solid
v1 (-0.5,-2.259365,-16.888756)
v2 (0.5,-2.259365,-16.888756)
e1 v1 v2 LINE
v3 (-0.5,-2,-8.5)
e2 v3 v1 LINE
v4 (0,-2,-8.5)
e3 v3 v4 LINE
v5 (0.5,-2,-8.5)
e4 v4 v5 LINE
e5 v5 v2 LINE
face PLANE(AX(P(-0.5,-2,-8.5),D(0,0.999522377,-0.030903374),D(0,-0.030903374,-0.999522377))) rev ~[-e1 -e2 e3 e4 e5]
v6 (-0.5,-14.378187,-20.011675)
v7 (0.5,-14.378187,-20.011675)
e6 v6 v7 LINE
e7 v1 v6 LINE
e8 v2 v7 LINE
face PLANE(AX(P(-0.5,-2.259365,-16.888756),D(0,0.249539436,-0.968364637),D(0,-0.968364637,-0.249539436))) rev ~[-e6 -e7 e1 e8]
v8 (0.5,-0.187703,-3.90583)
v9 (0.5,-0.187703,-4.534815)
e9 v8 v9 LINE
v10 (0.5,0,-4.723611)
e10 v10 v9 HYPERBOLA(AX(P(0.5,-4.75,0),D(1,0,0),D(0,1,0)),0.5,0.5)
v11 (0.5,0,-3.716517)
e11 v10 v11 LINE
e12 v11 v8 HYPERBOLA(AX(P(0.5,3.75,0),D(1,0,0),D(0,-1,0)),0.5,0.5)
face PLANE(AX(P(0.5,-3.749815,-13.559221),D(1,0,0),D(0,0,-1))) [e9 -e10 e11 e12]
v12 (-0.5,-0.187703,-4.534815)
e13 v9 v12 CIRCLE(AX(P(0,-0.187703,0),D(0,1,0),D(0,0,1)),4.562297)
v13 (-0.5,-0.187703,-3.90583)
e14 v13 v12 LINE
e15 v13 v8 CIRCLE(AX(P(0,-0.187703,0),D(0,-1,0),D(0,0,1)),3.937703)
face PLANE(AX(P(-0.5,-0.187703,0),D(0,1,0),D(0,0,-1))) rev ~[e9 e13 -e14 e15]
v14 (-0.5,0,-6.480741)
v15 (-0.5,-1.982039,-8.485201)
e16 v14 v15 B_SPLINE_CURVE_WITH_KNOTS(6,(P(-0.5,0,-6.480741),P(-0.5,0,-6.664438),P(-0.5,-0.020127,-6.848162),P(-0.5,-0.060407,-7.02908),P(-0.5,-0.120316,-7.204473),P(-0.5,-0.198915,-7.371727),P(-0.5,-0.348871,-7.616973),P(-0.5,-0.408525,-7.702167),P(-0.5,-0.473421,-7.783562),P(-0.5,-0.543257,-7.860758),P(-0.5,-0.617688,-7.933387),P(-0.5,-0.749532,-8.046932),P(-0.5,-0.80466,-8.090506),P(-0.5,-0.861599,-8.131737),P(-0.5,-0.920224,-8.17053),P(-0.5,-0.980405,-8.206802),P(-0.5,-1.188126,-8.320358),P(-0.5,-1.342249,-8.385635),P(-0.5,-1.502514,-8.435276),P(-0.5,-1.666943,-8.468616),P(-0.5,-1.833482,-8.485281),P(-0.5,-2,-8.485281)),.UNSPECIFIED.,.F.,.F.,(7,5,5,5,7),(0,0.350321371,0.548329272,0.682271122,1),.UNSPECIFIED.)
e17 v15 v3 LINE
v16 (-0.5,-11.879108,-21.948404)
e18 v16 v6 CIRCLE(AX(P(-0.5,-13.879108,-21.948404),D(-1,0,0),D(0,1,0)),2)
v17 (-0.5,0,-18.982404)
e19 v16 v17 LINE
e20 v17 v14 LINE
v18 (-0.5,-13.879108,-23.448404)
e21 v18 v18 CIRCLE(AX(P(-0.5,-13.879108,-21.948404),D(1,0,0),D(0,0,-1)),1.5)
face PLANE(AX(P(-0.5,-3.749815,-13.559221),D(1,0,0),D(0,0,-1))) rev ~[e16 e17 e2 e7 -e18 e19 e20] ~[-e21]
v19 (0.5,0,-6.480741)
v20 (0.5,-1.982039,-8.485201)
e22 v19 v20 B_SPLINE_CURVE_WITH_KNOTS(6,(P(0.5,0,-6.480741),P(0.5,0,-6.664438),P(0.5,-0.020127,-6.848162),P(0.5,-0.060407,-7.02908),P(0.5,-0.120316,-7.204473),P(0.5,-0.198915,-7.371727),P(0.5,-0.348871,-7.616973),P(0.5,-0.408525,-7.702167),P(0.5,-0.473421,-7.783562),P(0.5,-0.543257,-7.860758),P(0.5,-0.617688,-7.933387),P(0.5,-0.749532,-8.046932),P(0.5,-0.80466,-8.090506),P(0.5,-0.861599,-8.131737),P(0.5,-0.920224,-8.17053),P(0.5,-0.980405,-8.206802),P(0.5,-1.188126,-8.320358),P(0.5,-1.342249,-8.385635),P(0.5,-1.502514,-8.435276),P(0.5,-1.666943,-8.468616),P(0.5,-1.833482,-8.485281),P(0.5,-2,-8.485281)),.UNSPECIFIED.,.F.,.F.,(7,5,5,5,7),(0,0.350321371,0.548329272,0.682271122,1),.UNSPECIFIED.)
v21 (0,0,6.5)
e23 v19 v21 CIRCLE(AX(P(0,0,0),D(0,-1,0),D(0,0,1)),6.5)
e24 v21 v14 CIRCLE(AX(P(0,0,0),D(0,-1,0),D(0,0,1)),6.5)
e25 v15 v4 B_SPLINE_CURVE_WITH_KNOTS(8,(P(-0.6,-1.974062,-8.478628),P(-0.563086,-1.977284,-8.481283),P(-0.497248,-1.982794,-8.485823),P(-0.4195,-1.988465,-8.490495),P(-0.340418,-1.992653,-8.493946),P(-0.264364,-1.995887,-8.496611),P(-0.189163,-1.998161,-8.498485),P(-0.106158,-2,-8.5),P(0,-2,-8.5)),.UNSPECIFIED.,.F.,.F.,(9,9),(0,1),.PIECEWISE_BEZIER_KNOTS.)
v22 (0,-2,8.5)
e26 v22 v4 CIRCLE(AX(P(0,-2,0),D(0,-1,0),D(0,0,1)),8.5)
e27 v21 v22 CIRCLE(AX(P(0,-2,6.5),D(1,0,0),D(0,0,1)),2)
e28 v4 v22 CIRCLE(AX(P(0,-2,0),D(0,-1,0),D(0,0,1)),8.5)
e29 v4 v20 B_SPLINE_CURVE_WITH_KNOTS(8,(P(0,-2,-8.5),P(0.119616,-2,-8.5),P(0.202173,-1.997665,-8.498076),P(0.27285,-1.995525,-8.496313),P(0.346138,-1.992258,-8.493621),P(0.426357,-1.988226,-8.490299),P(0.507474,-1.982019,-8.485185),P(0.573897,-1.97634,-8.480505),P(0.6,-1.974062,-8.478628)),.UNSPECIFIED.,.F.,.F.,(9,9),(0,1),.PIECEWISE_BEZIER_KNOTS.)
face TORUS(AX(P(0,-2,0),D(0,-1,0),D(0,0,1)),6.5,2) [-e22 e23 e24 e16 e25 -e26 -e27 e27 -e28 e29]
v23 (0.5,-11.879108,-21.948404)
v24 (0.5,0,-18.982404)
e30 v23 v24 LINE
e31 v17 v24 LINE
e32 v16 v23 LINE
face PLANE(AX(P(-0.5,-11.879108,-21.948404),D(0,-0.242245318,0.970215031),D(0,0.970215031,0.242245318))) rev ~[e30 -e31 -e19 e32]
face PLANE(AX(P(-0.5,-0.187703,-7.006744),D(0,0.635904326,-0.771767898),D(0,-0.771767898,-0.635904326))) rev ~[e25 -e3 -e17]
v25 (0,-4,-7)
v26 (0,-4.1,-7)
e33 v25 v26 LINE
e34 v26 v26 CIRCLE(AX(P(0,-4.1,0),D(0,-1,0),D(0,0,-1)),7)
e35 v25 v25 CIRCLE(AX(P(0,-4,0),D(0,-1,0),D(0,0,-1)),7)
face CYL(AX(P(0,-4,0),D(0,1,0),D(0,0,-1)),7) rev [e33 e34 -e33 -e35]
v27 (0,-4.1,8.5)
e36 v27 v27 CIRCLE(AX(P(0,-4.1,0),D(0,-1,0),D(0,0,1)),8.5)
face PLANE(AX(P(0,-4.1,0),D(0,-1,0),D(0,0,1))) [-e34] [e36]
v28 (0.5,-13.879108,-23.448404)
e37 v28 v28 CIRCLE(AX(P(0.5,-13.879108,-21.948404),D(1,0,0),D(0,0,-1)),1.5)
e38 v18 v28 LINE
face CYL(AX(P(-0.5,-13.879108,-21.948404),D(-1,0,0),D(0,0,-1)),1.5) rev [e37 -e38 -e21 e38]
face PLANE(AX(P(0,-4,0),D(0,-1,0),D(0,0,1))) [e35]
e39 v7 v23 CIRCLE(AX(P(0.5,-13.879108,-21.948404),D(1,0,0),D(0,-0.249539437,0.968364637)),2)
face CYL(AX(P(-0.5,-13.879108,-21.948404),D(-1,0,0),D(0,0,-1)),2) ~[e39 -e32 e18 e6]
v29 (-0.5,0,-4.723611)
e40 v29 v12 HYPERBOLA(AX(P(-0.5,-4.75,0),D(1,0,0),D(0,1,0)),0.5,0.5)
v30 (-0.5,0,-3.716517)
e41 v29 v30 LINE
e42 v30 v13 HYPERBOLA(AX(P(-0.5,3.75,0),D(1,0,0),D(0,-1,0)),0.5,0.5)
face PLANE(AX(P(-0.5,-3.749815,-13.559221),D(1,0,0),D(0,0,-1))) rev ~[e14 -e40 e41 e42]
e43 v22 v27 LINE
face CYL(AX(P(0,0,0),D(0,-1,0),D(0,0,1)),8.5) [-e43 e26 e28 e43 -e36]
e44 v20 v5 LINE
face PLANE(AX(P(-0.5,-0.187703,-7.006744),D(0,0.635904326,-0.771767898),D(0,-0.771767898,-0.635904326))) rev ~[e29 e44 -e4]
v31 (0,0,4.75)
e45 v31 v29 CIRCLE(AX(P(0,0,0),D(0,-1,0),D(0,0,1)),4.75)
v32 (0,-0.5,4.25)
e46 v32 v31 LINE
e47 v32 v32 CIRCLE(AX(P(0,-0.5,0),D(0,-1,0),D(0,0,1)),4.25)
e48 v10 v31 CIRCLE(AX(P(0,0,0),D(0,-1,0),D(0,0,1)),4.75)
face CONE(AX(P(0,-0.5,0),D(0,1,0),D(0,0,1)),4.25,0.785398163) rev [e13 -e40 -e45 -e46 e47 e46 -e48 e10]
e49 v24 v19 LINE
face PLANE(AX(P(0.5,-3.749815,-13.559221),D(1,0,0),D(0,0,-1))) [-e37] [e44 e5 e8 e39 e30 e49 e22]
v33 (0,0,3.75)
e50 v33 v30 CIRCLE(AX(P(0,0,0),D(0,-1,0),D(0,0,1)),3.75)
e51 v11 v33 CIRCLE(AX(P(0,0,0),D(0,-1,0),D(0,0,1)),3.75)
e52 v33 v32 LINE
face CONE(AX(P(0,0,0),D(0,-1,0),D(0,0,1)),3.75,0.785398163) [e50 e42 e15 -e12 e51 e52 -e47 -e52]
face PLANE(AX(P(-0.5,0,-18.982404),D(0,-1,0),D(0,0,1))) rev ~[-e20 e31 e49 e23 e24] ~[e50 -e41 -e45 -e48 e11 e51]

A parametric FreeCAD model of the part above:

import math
import FreeCAD as App
import Part
import Sketcher

V = App.Vector


def edges_at(feature, points):
    """Names of the edges that pass closest to the given points."""
    edges = feature.Shape.Edges
    near = lambda p: min(range(len(edges)), key=lambda i: edges[i].distToShape(Part.Vertex(*p))[0])
    return sorted({f"Edge{near(p) + 1}" for p in points})

doc = App.newDocument("Part")
params = doc.addObject("Spreadsheet::Sheet", "Params")
for row, (alias, value) in enumerate([
    ("sketch1_width", "4 mm"),
    ("sketch1_height", "8.5 mm"),
    ("revolution_angle", "360 deg"),
    ("fillet_radius", "2 mm"),
    ("sketch2_diameter", "17 mm"),
    ("sketch2_diameter2", "14 mm"),
    ("pad1_length", "0.1 mm"),
    ("sketch3_diameter", "3 mm"),
    ("sketch3_radius", "2 mm"),
    ("pad2_length", "0.5 mm"),
    ("pad2_length2", "0.5 mm"),
], start=1):
    params.set(f"A{row}", alias)
    params.set(f"B{row}", "=" + value)
    params.setAlias(f"B{row}", alias)

body = doc.addObject("PartDesign::Body", "Body")

sketch1 = body.newObject("Sketcher::SketchObject", "Sketch")
sketch1.AttachmentSupport = (doc.getObject("YZ_Plane"), [""])
sketch1.MapMode = "FlatFace"
sketch1.addGeometry([
    Part.LineSegment(V(0, 0, 0), V(0, 3.75, 0)),
    Part.LineSegment(V(0, 3.75, 0), V(-0.5, 4.25, 0)),
    Part.LineSegment(V(-0.5, 4.25, 0), V(0, 4.75, 0)),
    Part.LineSegment(V(0, 4.75, 0), V(0, 8.5, 0)),
    Part.LineSegment(V(0, 8.5, 0), V(-4, 8.5, 0)),
    Part.LineSegment(V(-4, 8.5, 0), V(-4, 0, 0)),
    Part.LineSegment(V(-4, 0, 0), V(0, 0, 0)),
], False)
sketch1.addConstraint([
    Sketcher.Constraint("Coincident", 0, 2, 1, 1),
    Sketcher.Constraint("Coincident", 1, 2, 2, 1),
    Sketcher.Constraint("Coincident", 2, 2, 3, 1),
    Sketcher.Constraint("Coincident", 3, 2, 4, 1),
    Sketcher.Constraint("Coincident", 4, 2, 5, 1),
    Sketcher.Constraint("Coincident", 5, 2, 6, 1),
    Sketcher.Constraint("Coincident", 6, 2, 0, 1),
    Sketcher.Constraint("Vertical", 0),
    Sketcher.Constraint("Vertical", 3),
    Sketcher.Constraint("Horizontal", 4),
    Sketcher.Constraint("Vertical", 5),
    Sketcher.Constraint("Horizontal", 6),
    Sketcher.Constraint("Coincident", 6, 2, -1, 1),
    Sketcher.Constraint("PointOnObject", 2, 2, -2),
    Sketcher.Constraint("Perpendicular", 1, 2),
    Sketcher.Constraint("Equal", 0, 3),
    Sketcher.Constraint("Equal", 1, 2),
    Sketcher.Constraint("DistanceX", 4, 2, 4, 1, 4.0),
    Sketcher.Constraint("DistanceY", 5, 2, 5, 1, 8.5),
    Sketcher.Constraint("DistanceY", 0, 2, 2, 2, 1.0),
])
sketch1.setExpression("Constraints[17]", "Params.sketch1_width")
sketch1.setExpression("Constraints[18]", "Params.sketch1_height")
revolution = body.newObject("PartDesign::Revolution", "Revolution")
revolution.Profile = sketch1
revolution.ReferenceAxis = (sketch1, ["H_Axis"])
revolution.setExpression("Angle", "Params.revolution_angle")
doc.recompute()

fillet = body.newObject("PartDesign::Fillet", "Fillet")
fillet.Base = (revolution, edges_at(revolution, [(0, 0, -8.5)]))
fillet.setExpression("Radius", "Params.fillet_radius")
body2 = doc.addObject("PartDesign::Body", "Body001")

sketch2 = body2.newObject("Sketcher::SketchObject", "Sketch001")
sketch2.AttachmentSupport = (doc.getObject("XZ_Plane001"), [""])
sketch2.MapMode = "FlatFace"
sketch2.AttachmentOffset = App.Placement(V(0, 0, 4), App.Rotation())
sketch2.addGeometry([
    Part.Circle(V(0, 0, 0), V(0, 0, 1), 8.5),
    Part.Circle(V(0, 0, 0), V(0, 0, 1), 7),
], False)
sketch2.addConstraint([
    Sketcher.Constraint("Coincident", 0, 3, -1, 1),
    Sketcher.Constraint("Coincident", 1, 3, -1, 1),
    Sketcher.Constraint("Diameter", 0, 17.0),
    Sketcher.Constraint("Diameter", 1, 14.0),
])
sketch2.setExpression("Constraints[2]", "Params.sketch2_diameter")
sketch2.setExpression("Constraints[3]", "Params.sketch2_diameter2")
pad1 = body2.newObject("PartDesign::Pad", "Pad")
pad1.Profile = sketch2
pad1.setExpression("Length", "Params.pad1_length")
doc.recompute()

boolean = body.newObject("PartDesign::Boolean", "Boolean")
boolean.Type = "Fuse"
boolean.addObjects([body2])

sketch3 = body.newObject("Sketcher::SketchObject", "Sketch002")
sketch3.AttachmentSupport = (doc.getObject("YZ_Plane"), [""])
sketch3.MapMode = "FlatFace"
sketch3.addGeometry([
    Part.LineSegment(V(0, -18.982404, 0), V(0, 0, 0)),
    Part.LineSegment(V(0, 0, 0), V(-0.187703, 0, 0)),
    Part.LineSegment(V(-0.187703, 0, 0), V(-0.187703, -7.006744, 0)),
    Part.LineSegment(V(-0.187703, -7.006744, 0), V(-2, -8.5, 0)),
    Part.LineSegment(V(-2, -8.5, 0), V(-2.259365, -16.888756, 0)),
    Part.LineSegment(V(-2.259365, -16.888756, 0), V(-14.378187, -20.011675, 0)),
    Part.ArcOfCircle(Part.Circle(V(-13.879108, -21.948404, 0), V(0, 0, 1), 2), math.radians(104.45026), math.radians(360)),
    Part.LineSegment(V(-11.879108, -21.948404, 0), V(0, -18.982404, 0)),
    Part.Circle(V(-13.879108, -21.948404, 0), V(0, 0, 1), 1.5),
], False)
sketch3.addConstraint([
    Sketcher.Constraint("Coincident", 0, 2, 1, 1),
    Sketcher.Constraint("Coincident", 1, 2, 2, 1),
    Sketcher.Constraint("Coincident", 2, 2, 3, 1),
    Sketcher.Constraint("Coincident", 3, 2, 4, 1),
    Sketcher.Constraint("Coincident", 4, 2, 5, 1),
    Sketcher.Constraint("Tangent", 5, 2, 6, 1),
    Sketcher.Constraint("Coincident", 6, 2, 7, 1),
    Sketcher.Constraint("Coincident", 7, 2, 0, 1),
    Sketcher.Constraint("Vertical", 0),
    Sketcher.Constraint("Horizontal", 1),
    Sketcher.Constraint("Vertical", 2),
    Sketcher.Constraint("Coincident", 0, 2, -1, 1),
    Sketcher.Constraint("Coincident", 8, 3, 6, 3),
    Sketcher.Constraint("Horizontal", 8, 3, 6, 2),
    Sketcher.Constraint("Diameter", 8, 3.0),
    Sketcher.Constraint("Radius", 6, 2.0),
    Sketcher.Constraint("DistanceX", 3, 2, -1, 1, 2.0),
    Sketcher.Constraint("DistanceY", 3, 2, -1, 1, 8.5),
    Sketcher.Constraint("DistanceY", 6, 2, 7, 2, 2.966001),
    Sketcher.Constraint("Distance", 3, 2.34824),
    Sketcher.Constraint("Distance", 5, 12.51473),
    Sketcher.Constraint("Distance", 7, 12.243789),
    Sketcher.Constraint("DistanceX", 1, 2, 1, 1, 0.187703),
    Sketcher.Constraint("DistanceY", 0, 1, 0, 2, 18.982404),
    Sketcher.Constraint("DistanceX", 4, 2, 2, 2, 2.071661),
])
sketch3.setExpression("Constraints[14]", "Params.sketch3_diameter")
sketch3.setExpression("Constraints[15]", "Params.sketch3_radius")
pad2 = body.newObject("PartDesign::Pad", "Pad001")
pad2.Profile = sketch3
pad2.Type = "TwoLengths"
pad2.setExpression("Length", "Params.pad2_length")
pad2.setExpression("Length2", "Params.pad2_length2")

doc.recompute()
